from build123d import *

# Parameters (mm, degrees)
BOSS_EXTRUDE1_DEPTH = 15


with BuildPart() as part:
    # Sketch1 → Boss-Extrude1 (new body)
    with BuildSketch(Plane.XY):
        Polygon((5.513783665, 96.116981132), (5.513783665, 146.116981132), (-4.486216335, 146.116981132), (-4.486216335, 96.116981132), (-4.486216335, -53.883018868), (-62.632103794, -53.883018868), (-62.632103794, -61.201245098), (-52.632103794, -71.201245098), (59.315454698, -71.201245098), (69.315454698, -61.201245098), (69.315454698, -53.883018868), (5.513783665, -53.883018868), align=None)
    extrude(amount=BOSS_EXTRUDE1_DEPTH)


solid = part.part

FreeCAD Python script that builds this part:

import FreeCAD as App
import Part
import Sketcher

V = App.Vector

doc = App.newDocument("Part")
params = doc.addObject("Spreadsheet::Sheet", "Params")
for row, (alias, value) in enumerate([
    ("sketch1_width", "10 mm"),
    ("sketch1_height", "200 mm"),
    ("pad1_length", "15 mm"),
], start=1):
    params.set(f"A{row}", alias)
    params.set(f"B{row}", "=" + value)
    params.setAlias(f"B{row}", alias)

body = doc.addObject("PartDesign::Body", "Body")

sketch1 = body.newObject("Sketcher::SketchObject", "Sketch")
sketch1.AttachmentSupport = (doc.getObject("XY_Plane"), [""])
sketch1.MapMode = "FlatFace"
sketch1.addGeometry(Part.LineSegment(V(5.513784, 146.116981, 0), V(-4.486216, 146.116981, 0)), False)
sketch1.addGeometry(Part.LineSegment(V(-4.486216, 146.116981, 0), V(-4.486216, -53.883019, 0)), False)
sketch1.addGeometry(Part.LineSegment(V(-4.486216, -53.883019, 0), V(-62.632104, -53.883019, 0)), False)
sketch1.addGeometry(Part.LineSegment(V(-62.632104, -53.883019, 0), V(-62.632104, -61.201245, 0)), False)
sketch1.addGeometry(Part.LineSegment(V(-62.632104, -61.201245, 0), V(-52.632104, -71.201245, 0)), False)
sketch1.addGeometry(Part.LineSegment(V(-52.632104, -71.201245, 0), V(59.315455, -71.201245, 0)), False)
sketch1.addGeometry(Part.LineSegment(V(59.315455, -71.201245, 0), V(69.315455, -61.201245, 0)), False)
sketch1.addGeometry(Part.LineSegment(V(69.315455, -61.201245, 0), V(69.315455, -53.883019, 0)), False)
sketch1.addGeometry(Part.LineSegment(V(69.315455, -53.883019, 0), V(5.513784, -53.883019, 0)), False)
sketch1.addGeometry(Part.LineSegment(V(5.513784, -53.883019, 0), V(5.513784, 146.116981, 0)), False)
sketch1.addConstraint(Sketcher.Constraint("Coincident", 0, 2, 1, 1))
sketch1.addConstraint(Sketcher.Constraint("Coincident", 1, 2, 2, 1))
sketch1.addConstraint(Sketcher.Constraint("Coincident", 2, 2, 3, 1))
sketch1.addConstraint(Sketcher.Constraint("Coincident", 3, 2, 4, 1))
sketch1.addConstraint(Sketcher.Constraint("Coincident", 4, 2, 5, 1))
sketch1.addConstraint(Sketcher.Constraint("Coincident", 5, 2, 6, 1))
sketch1.addConstraint(Sketcher.Constraint("Coincident", 6, 2, 7, 1))
sketch1.addConstraint(Sketcher.Constraint("Coincident", 7, 2, 8, 1))
sketch1.addConstraint(Sketcher.Constraint("Coincident", 8, 2, 9, 1))
sketch1.addConstraint(Sketcher.Constraint("Coincident", 9, 2, 0, 1))
sketch1.addConstraint(Sketcher.Constraint("Horizontal", 0))
sketch1.addConstraint(Sketcher.Constraint("Vertical", 1))
sketch1.addConstraint(Sketcher.Constraint("Horizontal", 2))
sketch1.addConstraint(Sketcher.Constraint("Vertical", 3))
sketch1.addConstraint(Sketcher.Constraint("Horizontal", 5))
sketch1.addConstraint(Sketcher.Constraint("Vertical", 7))
sketch1.addConstraint(Sketcher.Constraint("Horizontal", 8))
sketch1.addConstraint(Sketcher.Constraint("Vertical", 9))
sketch1.addConstraint(Sketcher.Constraint("Perpendicular", 4, 6))
sketch1.addConstraint(Sketcher.Constraint("Horizontal", 3, 2, 6, 2))
sketch1.addConstraint(Sketcher.Constraint("Horizontal", 2, 2, 7, 2))
sketch1.addConstraint(Sketcher.Constraint("Equal", 4, 6))
sketch1.addConstraint(Sketcher.Constraint("DistanceX", 0, 2, 0, 1, 10.0))
sketch1.addConstraint(Sketcher.Constraint("DistanceY", 1, 2, 1, 1, 200.0))
sketch1.addConstraint(Sketcher.Constraint("DistanceX", 3, 2, 4, 2, 10.0))
sketch1.addConstraint(Sketcher.Constraint("DistanceX", 5, 1, 5, 2, 111.947558))
sketch1.addConstraint(Sketcher.Constraint("DistanceX", 8, 2, 8, 1, 63.801671))
sketch1.addConstraint(Sketcher.Constraint("DistanceY", 3, 2, 3, 1, 7.318226))
sketch1.addConstraint(Sketcher.Constraint("DistanceY", -1, 1, 0, 2, 146.116981))
sketch1.addConstraint(Sketcher.Constraint("DistanceX", 0, 2, -1, 1, 4.486216))
sketch1.setExpression("Constraints[22]", "Params.sketch1_width")
sketch1.setExpression("Constraints[23]", "Params.sketch1_height")
pad1 = body.newObject("PartDesign::Pad", "Pad")
pad1.Profile = sketch1
pad1.setExpression("Length", "Params.pad1_length")

doc.recompute()
